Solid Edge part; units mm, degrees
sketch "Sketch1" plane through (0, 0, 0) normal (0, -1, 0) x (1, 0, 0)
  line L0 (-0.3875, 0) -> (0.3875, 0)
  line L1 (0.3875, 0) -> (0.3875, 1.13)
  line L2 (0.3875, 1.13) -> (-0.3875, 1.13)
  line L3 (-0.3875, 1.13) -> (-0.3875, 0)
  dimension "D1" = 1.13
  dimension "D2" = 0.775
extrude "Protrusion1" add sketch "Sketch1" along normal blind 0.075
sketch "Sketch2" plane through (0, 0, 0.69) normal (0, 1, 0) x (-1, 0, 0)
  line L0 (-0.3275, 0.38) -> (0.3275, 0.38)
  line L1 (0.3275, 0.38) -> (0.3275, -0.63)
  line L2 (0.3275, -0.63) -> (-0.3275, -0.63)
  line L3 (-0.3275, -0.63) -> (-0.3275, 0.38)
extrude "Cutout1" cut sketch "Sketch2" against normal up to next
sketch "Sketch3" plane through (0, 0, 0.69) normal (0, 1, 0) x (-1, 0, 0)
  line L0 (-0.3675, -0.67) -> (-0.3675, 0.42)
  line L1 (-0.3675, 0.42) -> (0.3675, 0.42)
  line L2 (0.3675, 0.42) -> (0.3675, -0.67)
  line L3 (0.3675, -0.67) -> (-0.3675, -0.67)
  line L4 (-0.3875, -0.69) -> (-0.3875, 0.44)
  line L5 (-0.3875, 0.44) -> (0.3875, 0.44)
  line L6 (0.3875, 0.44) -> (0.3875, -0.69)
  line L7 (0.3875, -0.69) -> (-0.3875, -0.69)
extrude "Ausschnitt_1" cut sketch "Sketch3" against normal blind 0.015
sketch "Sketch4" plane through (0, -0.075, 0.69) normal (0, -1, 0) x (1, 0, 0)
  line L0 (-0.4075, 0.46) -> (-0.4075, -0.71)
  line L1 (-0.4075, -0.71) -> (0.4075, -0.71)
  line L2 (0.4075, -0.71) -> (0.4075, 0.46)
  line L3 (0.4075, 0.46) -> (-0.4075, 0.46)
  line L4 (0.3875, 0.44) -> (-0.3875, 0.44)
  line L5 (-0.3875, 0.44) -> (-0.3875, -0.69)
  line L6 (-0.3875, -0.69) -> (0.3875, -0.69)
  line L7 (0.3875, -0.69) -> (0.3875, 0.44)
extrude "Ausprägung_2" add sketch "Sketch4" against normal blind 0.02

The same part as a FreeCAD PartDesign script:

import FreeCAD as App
import Part
import Sketcher
Q = App.Units.Quantity


def add_polygon(sketch, points):
    """Adds a closed chain of lines whose ends are joined by coincident constraints."""
    first, n = sketch.GeometryCount, len(points)
    for a, b in zip(points, points[1:] + points[:1]):
        sketch.addGeometry(Part.LineSegment(App.Vector(*a, 0), App.Vector(*b, 0)), False)
    for i in range(n):
        sketch.addConstraint(Sketcher.Constraint("Coincident", first + i, 2, first + (i + 1) % n, 1))

doc = App.newDocument("Part")
body = doc.addObject("PartDesign::Body", "Body")

# Sketch on XZ plane
sketch1 = body.newObject("Sketcher::SketchObject", "Sketch")
sketch1.AttachmentSupport = (doc.getObject("XZ_Plane"), [""])
sketch1.MapMode = "FlatFace"
add_polygon(sketch1, [(-0.4, 1.1), (-0.4, 0), (0.4, 0), (0.4, 1.1)])  # lines 0-3
sketch1.addConstraint(Sketcher.Constraint("Vertical", 0))
sketch1.addConstraint(Sketcher.Constraint("Horizontal", 1))
sketch1.addConstraint(Sketcher.Constraint("Vertical", 2))
sketch1.addConstraint(Sketcher.Constraint("Horizontal", 3))
sketch1.addConstraint(Sketcher.Constraint("Symmetric", 0, 2, 1, 2, -1, 1))
sketch1.addConstraint(Sketcher.Constraint("DistanceY", 0, 2, 0, 1, Q("1.13 mm")))
sketch1.addConstraint(Sketcher.Constraint("DistanceX", 0, 2, -1, 1, Q("0.3875 mm")))
pad1 = body.newObject("PartDesign::Pad", "Pad")
pad1.Profile = sketch1
pad1.Length = 0.075

# Sketch on XZ plane
sketch2 = body.newObject("Sketcher::SketchObject", "Sketch001")
sketch2.AttachmentSupport = (doc.getObject("XZ_Plane"), [""])
sketch2.MapMode = "FlatFace"
add_polygon(sketch2, [(-0.3, 1.1), (0.3, 1.1), (0.3, 0.1), (-0.3, 0.1)])  # lines 0-3
sketch2.addConstraint(Sketcher.Constraint("Horizontal", 0))
sketch2.addConstraint(Sketcher.Constraint("Vertical", 1))
sketch2.addConstraint(Sketcher.Constraint("Horizontal", 2))
sketch2.addConstraint(Sketcher.Constraint("Vertical", 3))
sketch2.addConstraint(Sketcher.Constraint("DistanceY", 1, 2, 1, 1, Q("1.01 mm")))
sketch2.addConstraint(Sketcher.Constraint("DistanceX", 0, 1, 0, 2, Q("0.655 mm")))
sketch2.addConstraint(Sketcher.Constraint("DistanceY", -1, 1, 0, 2, Q("1.07 mm")))
sketch2.addConstraint(Sketcher.Constraint("DistanceX", -1, 1, 0, 2, Q("0.3275 mm")))
pocket1 = body.newObject("PartDesign::Pocket", "Pocket")
pocket1.Profile = sketch2
pocket1.Type = "UpToFirst"
pocket1.Reversed = True

# Sketch on XZ plane
sketch3 = body.newObject("Sketcher::SketchObject", "Sketch002")
sketch3.AttachmentSupport = (doc.getObject("XZ_Plane"), [""])
sketch3.MapMode = "FlatFace"
add_polygon(sketch3, [(0.4, 1.1), (0.4, 0), (-0.4, 0), (-0.4, 1.1)])  # lines 0-3
add_polygon(sketch3, [(-0.4, 0), (0.4, 0), (0.4, 1.1), (-0.4, 1.1)])  # lines 4-7
sketch3.addConstraint(Sketcher.Constraint("Vertical", 0))
sketch3.addConstraint(Sketcher.Constraint("Horizontal", 1))
sketch3.addConstraint(Sketcher.Constraint("Vertical", 2))
sketch3.addConstraint(Sketcher.Constraint("Horizontal", 3))
sketch3.addConstraint(Sketcher.Constraint("Horizontal", 4))
sketch3.addConstraint(Sketcher.Constraint("Vertical", 5))
sketch3.addConstraint(Sketcher.Constraint("Horizontal", 6))
sketch3.addConstraint(Sketcher.Constraint("Vertical", 7))
sketch3.addConstraint(Sketcher.Constraint("Symmetric", 0, 2, 1, 2, -1, 1))
sketch3.addConstraint(Sketcher.Constraint("DistanceY", 0, 2, 0, 1, Q("1.13 mm")))
sketch3.addConstraint(Sketcher.Constraint("DistanceY", 5, 1, 5, 2, Q("1.09 mm")))
sketch3.addConstraint(Sketcher.Constraint("DistanceX", 1, 2, 1, 1, Q("0.775 mm")))
sketch3.addConstraint(Sketcher.Constraint("DistanceX", 4, 1, 4, 2, Q("0.735 mm")))
sketch3.addConstraint(Sketcher.Constraint("DistanceY", -1, 1, 4, 2, Q("0.02 mm")))
sketch3.addConstraint(Sketcher.Constraint("DistanceX", 4, 2, 0, 2, Q("0.02 mm")))
pocket2 = body.newObject("PartDesign::Pocket", "Pocket001")
pocket2.Profile = sketch3
pocket2.Length = 0.015
pocket2.Reversed = True

# Sketch on XZ plane
sketch4 = body.newObject("Sketcher::SketchObject", "Sketch003")
sketch4.AttachmentSupport = (doc.getObject("XZ_Plane"), [""])
sketch4.MapMode = "FlatFace"
sketch4.AttachmentOffset = App.Placement(App.Vector(0, 0, 0.075), App.Rotation())
add_polygon(sketch4, [(0.4, 1.1), (-0.4, 1.1), (-0.4, 0), (0.4, 0)])  # lines 0-3
add_polygon(sketch4, [(-0.4, 1.1), (0.4, 1.1), (0.4, 0), (-0.4, 0)])  # lines 4-7
sketch4.addConstraint(Sketcher.Constraint("Horizontal", 0))
sketch4.addConstraint(Sketcher.Constraint("Vertical", 1))
sketch4.addConstraint(Sketcher.Constraint("Horizontal", 2))
sketch4.addConstraint(Sketcher.Constraint("Vertical", 3))
sketch4.addConstraint(Sketcher.Constraint("Horizontal", 4))
sketch4.addConstraint(Sketcher.Constraint("Vertical", 5))
sketch4.addConstraint(Sketcher.Constraint("Horizontal", 6))
sketch4.addConstraint(Sketcher.Constraint("Vertical", 7))
sketch4.addConstraint(Sketcher.Constraint("Symmetric", 5, 2, 6, 2, -1, 1))
sketch4.addConstraint(Sketcher.Constraint("DistanceY", 1, 2, 1, 1, Q("1.17 mm")))
sketch4.addConstraint(Sketcher.Constraint("DistanceY", 5, 2, 5, 1, Q("1.13 mm")))
sketch4.addConstraint(Sketcher.Constraint("DistanceX", 0, 2, 0, 1, Q("0.815 mm")))
sketch4.addConstraint(Sketcher.Constraint("DistanceX", 4, 1, 4, 2, Q("0.775 mm")))
sketch4.addConstraint(Sketcher.Constraint("DistanceY", -1, 1, 0, 2, Q("1.15 mm")))
sketch4.addConstraint(Sketcher.Constraint("DistanceX", 4, 2, 3, 2, Q("0.02 mm")))
pad2 = body.newObject("PartDesign::Pad", "Pad001")
pad2.Profile = sketch4
pad2.Length = 0.02
pad2.Reversed = True

doc.recompute()
